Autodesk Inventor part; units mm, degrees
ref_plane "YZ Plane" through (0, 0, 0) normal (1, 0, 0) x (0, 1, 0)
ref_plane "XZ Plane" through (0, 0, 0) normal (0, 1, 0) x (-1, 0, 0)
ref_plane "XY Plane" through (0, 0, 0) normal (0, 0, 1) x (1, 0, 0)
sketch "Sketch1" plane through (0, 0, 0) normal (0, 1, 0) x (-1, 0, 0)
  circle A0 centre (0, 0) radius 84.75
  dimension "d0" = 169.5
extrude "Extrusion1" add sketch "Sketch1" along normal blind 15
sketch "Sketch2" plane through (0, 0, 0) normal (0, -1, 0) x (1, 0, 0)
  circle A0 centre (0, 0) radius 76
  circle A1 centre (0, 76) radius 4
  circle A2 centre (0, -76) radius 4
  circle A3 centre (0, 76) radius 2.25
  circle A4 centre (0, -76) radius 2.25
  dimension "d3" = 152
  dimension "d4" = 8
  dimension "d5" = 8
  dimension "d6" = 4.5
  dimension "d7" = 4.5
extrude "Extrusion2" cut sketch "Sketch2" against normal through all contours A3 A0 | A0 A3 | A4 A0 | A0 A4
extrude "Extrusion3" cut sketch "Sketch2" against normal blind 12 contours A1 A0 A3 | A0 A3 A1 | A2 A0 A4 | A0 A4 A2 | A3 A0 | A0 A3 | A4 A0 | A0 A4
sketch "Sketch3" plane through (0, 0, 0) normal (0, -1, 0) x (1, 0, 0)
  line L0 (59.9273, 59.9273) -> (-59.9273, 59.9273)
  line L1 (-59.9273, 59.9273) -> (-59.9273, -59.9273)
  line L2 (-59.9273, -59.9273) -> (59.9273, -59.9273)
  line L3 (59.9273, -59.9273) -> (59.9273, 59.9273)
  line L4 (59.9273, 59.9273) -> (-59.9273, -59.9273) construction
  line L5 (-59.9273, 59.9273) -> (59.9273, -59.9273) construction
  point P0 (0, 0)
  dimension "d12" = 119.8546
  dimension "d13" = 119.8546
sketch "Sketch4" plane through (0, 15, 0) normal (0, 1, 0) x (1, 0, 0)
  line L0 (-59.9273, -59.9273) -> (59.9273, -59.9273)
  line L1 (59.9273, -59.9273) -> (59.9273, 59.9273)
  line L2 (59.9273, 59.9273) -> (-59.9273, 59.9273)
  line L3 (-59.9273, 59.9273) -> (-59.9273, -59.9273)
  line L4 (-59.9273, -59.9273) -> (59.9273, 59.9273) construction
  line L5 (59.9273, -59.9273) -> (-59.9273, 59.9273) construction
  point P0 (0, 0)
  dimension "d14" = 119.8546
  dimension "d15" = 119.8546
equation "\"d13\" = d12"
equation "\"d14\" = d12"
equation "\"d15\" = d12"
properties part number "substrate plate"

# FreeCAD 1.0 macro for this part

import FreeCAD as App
import Part
import Sketcher

doc = App.newDocument("Part")
body = doc.addObject("PartDesign::Body", "Body")

# Sketch on XZ plane
sketch1 = doc.addObject("Sketcher::SketchObject", "Sketch")
body.addObject(sketch1)
sketch1.AttachmentSupport = (doc.XZ_Plane, [""])
sketch1.MapMode = "FlatFace"
sketch1.addGeometry(Part.Circle(App.Vector(0, 0, 0), App.Vector(0, 0, 1), 85), False)
sketch1.addConstraint([
    Sketcher.Constraint("Coincident", 0, 3, -1, 1),
    Sketcher.Constraint("Diameter", 0, 169.5),
])
pad1 = doc.addObject("PartDesign::Pad", "Pad")
body.addObject(pad1)
pad1.Profile = sketch1
pad1.Length = 15
pad1.Reversed = True

# Sketch on XZ plane
sketch2 = doc.addObject("Sketcher::SketchObject", "Sketch001")
body.addObject(sketch2)
sketch2.AttachmentSupport = (doc.XZ_Plane, [""])
sketch2.MapMode = "FlatFace"
sketch2.addGeometry([
    Part.Circle(App.Vector(0, 76, 0), App.Vector(0, 0, 1), 2.2),
    Part.Circle(App.Vector(0, -76, 0), App.Vector(0, 0, 1), 2.2),
], False)
sketch2.addConstraint([
    Sketcher.Constraint("Equal", 0, 1),
    Sketcher.Constraint("Symmetric", 0, 3, 1, 3, -1, 1),
    Sketcher.Constraint("PointOnObject", 0, 3, -2),
    Sketcher.Constraint("Diameter", 0, 4.5),
    Sketcher.Constraint("DistanceY", 1, 3, 0, 3, 152.0),
])
pocket1 = doc.addObject("PartDesign::Pocket", "Pocket")
body.addObject(pocket1)
pocket1.Profile = sketch2
pocket1.Type = "ThroughAll"

# Sketch on XZ plane
sketch3 = doc.addObject("Sketcher::SketchObject", "Sketch002")
body.addObject(sketch3)
sketch3.AttachmentSupport = (doc.XZ_Plane, [""])
sketch3.MapMode = "FlatFace"
sketch3.addGeometry([
    Part.Circle(App.Vector(0, 76, 0), App.Vector(0, 0, 1), 4),
    Part.Circle(App.Vector(0, -76, 0), App.Vector(0, 0, 1), 4),
], False)
sketch3.addConstraint([
    Sketcher.Constraint("Equal", 0, 1),
    Sketcher.Constraint("Symmetric", 0, 3, 1, 3, -1, 1),
    Sketcher.Constraint("PointOnObject", 0, 3, -2),
    Sketcher.Constraint("Diameter", 0, 8.0),
    Sketcher.Constraint("DistanceY", 1, 3, 0, 3, 152.0),
])
pocket2 = doc.addObject("PartDesign::Pocket", "Pocket001")
body.addObject(pocket2)
pocket2.Profile = sketch3
pocket2.Length = 12

doc.recompute()
